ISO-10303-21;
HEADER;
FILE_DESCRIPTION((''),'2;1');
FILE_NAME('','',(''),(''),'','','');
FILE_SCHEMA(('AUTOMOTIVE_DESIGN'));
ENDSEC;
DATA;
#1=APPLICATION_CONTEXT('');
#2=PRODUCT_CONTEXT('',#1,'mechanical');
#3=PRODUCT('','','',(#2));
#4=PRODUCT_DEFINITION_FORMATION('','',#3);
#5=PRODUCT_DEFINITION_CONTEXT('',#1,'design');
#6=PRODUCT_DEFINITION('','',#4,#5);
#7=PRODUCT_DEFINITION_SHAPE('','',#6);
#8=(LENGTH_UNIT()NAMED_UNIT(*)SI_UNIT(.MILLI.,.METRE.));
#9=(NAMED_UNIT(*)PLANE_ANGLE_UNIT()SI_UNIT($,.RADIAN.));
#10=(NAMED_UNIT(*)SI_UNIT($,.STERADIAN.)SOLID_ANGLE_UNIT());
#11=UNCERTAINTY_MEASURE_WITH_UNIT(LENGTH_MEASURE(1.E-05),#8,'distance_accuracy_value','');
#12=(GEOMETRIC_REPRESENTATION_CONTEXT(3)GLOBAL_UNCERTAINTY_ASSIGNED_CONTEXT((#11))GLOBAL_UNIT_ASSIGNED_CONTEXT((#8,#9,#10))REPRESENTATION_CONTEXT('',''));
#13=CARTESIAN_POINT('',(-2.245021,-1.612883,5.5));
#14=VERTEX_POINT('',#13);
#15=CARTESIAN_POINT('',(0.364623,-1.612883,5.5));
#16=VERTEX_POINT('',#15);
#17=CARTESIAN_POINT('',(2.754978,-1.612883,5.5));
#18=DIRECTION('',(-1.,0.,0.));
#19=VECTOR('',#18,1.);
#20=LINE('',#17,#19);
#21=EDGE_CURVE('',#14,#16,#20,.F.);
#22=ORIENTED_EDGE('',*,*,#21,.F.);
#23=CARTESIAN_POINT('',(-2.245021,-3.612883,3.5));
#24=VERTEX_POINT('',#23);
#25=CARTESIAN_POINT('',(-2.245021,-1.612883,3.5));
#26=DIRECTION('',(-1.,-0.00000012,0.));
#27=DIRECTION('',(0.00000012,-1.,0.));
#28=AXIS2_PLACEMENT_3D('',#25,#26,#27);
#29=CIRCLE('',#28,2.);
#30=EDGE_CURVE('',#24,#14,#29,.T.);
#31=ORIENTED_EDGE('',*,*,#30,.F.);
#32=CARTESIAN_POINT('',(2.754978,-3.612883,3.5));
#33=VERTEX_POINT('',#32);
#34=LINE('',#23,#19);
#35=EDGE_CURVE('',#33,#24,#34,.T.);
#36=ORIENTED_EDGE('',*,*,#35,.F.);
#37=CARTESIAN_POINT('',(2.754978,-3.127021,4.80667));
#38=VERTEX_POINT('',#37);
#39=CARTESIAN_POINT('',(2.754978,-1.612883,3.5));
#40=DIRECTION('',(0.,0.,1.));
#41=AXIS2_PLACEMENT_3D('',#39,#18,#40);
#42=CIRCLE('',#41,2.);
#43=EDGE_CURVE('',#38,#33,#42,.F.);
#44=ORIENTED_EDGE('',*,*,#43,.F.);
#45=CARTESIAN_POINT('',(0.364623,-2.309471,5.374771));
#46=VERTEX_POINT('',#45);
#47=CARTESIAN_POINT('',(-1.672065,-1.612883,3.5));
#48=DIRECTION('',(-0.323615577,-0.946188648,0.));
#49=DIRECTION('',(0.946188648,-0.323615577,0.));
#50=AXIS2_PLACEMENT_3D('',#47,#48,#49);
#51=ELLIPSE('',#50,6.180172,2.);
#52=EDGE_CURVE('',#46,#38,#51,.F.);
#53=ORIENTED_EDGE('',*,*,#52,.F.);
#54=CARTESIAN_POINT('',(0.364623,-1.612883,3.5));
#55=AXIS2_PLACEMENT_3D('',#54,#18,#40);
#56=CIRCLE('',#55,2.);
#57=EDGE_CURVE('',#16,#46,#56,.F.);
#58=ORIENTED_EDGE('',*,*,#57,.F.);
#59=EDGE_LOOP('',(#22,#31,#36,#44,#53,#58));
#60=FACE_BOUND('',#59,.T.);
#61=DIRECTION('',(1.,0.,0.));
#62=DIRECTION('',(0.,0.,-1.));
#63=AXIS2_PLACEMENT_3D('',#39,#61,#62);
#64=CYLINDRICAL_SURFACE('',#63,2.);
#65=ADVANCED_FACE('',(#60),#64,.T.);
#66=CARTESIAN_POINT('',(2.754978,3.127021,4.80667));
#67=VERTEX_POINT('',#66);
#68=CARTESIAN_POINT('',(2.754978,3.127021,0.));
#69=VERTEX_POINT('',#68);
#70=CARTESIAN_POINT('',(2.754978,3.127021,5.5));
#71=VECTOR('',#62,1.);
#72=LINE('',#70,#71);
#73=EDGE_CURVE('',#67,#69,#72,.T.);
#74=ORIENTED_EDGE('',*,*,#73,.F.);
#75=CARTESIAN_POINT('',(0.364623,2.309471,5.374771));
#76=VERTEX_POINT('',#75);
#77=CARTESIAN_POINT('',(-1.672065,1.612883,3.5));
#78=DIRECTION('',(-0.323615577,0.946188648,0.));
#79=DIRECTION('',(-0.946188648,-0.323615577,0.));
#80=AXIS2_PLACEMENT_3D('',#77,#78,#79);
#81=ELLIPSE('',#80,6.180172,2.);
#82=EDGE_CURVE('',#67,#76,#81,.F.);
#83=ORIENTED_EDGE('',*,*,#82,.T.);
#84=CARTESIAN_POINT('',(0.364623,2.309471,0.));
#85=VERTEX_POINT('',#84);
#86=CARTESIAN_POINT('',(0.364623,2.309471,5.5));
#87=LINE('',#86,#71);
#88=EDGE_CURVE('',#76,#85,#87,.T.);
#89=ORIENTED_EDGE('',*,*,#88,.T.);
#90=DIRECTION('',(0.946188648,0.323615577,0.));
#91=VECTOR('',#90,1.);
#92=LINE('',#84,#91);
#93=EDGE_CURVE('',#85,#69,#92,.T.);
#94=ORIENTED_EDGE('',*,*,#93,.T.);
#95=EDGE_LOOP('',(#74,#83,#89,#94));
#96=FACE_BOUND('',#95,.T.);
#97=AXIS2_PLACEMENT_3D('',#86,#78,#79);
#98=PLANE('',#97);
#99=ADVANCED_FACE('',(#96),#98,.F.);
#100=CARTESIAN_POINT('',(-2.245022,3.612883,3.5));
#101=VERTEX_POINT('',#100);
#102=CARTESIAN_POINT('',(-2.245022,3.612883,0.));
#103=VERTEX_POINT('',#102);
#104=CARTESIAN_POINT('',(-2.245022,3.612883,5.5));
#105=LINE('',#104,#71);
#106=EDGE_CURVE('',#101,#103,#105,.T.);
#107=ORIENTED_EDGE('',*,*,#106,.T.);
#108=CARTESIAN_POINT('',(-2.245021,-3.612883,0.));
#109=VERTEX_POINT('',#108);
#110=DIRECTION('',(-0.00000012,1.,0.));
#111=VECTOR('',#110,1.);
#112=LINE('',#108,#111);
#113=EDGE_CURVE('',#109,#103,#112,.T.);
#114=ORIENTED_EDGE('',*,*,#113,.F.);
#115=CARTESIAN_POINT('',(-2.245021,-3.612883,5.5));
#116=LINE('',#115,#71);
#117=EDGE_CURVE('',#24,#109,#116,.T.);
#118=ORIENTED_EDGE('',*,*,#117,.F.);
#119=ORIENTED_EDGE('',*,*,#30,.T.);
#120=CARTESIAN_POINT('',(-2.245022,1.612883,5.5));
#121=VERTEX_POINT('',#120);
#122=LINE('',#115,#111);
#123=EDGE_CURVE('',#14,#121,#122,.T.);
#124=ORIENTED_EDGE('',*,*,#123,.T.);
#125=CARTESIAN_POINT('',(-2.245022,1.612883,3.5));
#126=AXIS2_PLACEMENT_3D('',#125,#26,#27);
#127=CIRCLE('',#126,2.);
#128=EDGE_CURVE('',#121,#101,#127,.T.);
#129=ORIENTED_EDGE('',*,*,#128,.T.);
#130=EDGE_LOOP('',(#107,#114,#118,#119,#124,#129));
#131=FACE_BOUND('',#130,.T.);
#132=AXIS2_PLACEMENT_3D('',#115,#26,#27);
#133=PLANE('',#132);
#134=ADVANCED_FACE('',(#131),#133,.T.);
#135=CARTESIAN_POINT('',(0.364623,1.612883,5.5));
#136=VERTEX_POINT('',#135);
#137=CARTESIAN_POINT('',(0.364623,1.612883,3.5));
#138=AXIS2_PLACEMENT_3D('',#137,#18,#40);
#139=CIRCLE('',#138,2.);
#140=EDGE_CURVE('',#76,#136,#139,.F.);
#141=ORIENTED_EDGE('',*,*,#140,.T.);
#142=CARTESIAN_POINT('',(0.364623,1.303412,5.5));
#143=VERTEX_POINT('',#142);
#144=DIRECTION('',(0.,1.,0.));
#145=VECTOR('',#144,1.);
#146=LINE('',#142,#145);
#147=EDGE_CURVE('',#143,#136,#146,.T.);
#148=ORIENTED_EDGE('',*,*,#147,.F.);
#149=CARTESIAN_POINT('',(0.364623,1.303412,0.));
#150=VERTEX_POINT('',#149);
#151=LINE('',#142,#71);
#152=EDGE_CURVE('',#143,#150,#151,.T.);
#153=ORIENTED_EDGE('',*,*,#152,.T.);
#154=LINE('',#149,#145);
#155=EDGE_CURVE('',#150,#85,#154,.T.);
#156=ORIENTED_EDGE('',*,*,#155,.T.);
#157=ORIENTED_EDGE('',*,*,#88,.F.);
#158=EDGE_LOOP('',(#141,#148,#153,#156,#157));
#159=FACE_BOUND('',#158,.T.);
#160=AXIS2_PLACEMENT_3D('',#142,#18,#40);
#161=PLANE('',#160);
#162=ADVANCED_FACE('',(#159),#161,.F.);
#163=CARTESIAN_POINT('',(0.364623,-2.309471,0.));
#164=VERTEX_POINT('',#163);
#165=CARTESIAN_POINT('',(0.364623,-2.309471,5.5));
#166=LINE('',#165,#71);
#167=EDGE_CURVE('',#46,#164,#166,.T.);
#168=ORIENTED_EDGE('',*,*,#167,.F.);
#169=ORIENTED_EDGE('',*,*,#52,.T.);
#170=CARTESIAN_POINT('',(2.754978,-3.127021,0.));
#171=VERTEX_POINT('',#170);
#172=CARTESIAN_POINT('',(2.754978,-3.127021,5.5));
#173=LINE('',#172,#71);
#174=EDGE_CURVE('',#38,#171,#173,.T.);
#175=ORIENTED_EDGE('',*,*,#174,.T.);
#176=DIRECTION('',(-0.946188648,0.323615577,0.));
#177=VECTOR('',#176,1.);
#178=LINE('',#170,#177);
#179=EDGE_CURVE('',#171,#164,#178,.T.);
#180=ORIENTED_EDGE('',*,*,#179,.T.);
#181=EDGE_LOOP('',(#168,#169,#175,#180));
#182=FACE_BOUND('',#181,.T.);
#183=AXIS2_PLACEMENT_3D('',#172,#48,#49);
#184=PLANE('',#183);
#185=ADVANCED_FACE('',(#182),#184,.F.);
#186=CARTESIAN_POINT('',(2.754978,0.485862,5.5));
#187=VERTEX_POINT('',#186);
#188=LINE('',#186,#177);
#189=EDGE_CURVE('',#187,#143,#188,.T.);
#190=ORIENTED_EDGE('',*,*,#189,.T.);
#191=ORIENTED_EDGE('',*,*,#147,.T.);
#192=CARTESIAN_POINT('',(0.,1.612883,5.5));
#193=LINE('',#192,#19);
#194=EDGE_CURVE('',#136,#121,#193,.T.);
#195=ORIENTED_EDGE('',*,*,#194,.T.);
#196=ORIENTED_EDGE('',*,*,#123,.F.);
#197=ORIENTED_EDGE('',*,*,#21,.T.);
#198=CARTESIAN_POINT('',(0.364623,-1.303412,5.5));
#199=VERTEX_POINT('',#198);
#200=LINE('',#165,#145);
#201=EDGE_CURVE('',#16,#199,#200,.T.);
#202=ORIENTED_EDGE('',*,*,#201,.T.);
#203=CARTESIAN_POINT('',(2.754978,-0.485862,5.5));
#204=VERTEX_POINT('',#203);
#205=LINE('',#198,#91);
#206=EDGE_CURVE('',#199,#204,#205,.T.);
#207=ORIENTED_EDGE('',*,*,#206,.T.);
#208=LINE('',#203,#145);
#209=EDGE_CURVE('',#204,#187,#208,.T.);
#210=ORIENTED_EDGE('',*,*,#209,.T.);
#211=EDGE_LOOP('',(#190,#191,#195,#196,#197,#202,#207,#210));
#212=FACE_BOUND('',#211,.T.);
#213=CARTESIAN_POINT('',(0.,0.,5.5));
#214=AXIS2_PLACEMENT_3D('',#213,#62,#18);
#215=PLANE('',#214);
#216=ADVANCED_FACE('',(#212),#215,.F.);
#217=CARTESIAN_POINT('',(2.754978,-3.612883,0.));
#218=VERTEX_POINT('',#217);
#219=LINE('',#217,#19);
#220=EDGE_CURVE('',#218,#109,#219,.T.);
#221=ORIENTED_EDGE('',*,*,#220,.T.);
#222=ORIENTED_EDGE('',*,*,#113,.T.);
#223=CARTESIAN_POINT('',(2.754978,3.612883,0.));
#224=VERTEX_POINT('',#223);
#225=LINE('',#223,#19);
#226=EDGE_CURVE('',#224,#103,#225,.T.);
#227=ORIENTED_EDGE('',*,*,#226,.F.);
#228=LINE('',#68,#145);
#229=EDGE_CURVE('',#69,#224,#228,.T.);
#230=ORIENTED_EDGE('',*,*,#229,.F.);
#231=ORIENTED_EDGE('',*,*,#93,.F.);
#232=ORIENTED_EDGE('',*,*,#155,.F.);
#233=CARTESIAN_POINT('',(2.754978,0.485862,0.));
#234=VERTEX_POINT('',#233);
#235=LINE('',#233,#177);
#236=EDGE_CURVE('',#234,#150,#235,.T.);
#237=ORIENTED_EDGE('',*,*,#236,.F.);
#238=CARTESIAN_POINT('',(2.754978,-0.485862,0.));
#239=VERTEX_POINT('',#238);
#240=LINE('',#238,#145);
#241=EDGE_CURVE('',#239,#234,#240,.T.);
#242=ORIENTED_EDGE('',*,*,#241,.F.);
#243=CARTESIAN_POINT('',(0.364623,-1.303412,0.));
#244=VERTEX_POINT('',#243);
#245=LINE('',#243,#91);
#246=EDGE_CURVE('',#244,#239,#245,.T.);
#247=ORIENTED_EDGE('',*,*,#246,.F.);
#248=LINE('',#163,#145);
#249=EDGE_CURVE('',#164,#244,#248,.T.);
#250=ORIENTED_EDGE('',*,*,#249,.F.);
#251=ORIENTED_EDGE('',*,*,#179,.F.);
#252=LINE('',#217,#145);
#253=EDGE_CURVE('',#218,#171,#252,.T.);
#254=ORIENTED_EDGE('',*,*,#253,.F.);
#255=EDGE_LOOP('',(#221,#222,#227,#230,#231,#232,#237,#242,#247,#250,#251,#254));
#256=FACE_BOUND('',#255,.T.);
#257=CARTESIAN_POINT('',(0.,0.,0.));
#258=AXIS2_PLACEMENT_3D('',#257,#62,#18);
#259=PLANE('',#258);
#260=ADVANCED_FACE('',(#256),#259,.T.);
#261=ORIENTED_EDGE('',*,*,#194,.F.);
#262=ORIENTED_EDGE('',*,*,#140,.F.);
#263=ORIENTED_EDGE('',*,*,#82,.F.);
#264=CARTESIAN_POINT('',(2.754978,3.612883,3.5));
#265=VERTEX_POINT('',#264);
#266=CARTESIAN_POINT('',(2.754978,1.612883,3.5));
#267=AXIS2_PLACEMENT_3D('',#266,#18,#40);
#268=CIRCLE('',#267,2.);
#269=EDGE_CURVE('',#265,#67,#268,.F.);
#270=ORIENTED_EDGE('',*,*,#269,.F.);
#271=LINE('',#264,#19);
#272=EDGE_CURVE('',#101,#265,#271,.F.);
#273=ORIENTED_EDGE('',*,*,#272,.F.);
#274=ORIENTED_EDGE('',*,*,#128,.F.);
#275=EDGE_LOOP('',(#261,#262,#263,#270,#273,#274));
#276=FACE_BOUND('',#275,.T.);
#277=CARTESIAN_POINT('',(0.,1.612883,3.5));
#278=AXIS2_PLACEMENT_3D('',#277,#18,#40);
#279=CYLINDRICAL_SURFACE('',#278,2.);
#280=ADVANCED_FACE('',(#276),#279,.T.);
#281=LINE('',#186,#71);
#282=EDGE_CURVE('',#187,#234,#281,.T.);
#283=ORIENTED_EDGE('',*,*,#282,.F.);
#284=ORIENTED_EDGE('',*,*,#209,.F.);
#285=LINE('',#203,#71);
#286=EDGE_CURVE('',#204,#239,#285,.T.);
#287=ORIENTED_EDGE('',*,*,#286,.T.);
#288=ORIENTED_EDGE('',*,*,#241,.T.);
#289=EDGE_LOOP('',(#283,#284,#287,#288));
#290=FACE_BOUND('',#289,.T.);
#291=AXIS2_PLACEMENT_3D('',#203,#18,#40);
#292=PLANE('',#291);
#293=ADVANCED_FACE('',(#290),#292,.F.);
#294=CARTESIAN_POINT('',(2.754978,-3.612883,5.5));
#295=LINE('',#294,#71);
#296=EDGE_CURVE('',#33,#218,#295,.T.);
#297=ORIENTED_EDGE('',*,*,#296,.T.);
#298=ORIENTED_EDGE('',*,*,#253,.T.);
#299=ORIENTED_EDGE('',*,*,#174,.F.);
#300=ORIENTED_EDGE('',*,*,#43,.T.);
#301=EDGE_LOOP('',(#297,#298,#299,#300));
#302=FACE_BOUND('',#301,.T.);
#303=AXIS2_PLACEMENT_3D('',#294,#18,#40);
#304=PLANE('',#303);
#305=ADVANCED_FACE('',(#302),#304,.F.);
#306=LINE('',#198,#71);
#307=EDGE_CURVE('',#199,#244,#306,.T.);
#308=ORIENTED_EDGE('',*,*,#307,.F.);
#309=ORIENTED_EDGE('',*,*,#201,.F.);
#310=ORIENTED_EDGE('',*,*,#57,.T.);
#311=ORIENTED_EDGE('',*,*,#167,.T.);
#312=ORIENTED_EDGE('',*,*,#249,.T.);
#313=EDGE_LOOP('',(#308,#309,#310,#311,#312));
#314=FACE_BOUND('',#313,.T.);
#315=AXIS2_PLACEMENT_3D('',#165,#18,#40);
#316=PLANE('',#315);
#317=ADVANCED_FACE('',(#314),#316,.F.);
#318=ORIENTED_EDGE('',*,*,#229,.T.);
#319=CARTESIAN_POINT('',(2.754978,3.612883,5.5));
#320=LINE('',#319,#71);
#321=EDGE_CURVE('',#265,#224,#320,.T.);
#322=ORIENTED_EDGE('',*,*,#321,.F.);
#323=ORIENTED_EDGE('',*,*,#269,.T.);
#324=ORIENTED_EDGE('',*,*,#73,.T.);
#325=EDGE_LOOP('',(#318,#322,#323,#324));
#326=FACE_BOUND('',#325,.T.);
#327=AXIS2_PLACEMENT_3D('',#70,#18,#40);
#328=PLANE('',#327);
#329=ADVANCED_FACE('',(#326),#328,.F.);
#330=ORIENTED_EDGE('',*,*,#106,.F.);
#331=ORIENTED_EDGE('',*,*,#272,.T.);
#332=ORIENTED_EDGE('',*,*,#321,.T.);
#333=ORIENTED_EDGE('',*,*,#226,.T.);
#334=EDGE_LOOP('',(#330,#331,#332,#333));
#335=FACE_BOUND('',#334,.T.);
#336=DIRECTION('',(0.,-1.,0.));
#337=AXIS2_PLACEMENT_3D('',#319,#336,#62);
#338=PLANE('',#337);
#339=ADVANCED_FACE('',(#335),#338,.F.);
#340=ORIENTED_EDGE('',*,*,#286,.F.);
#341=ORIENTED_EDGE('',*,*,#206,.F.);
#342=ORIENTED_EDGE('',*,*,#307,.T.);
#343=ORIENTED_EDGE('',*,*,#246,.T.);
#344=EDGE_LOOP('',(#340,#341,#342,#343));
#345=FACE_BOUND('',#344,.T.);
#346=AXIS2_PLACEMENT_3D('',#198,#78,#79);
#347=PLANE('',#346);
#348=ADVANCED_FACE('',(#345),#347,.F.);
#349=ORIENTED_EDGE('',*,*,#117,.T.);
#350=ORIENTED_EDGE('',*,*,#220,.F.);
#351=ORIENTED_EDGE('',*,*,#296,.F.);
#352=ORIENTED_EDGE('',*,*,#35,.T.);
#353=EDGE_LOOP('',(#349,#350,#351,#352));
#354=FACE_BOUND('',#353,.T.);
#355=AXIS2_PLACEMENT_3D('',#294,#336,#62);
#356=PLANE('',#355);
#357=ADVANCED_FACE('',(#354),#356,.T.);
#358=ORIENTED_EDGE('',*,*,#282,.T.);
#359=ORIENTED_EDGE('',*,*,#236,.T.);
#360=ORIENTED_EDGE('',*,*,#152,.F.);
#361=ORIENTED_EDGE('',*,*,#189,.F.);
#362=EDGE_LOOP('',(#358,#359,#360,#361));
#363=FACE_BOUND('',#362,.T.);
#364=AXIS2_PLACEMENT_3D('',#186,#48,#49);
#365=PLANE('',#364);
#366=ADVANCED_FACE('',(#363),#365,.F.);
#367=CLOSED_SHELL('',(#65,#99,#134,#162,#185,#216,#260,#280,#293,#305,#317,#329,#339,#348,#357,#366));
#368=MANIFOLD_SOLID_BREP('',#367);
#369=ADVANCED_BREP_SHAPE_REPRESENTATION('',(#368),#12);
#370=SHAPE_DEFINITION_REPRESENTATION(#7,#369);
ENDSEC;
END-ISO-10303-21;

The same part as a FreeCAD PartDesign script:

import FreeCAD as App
import Part
import Sketcher


def edges_at(feature, points):
    """Names of the edges that pass closest to the given points."""
    edges = feature.Shape.Edges
    near = lambda p: min(range(len(edges)), key=lambda i: edges[i].distToShape(Part.Vertex(*p))[0])
    return sorted({f"Edge{near(p) + 1}" for p in points})

doc = App.newDocument("Part")
body = doc.addObject("PartDesign::Body", "Body")

# Sketch on XY plane
sketch1 = doc.addObject("Sketcher::SketchObject", "Sketch")
body.addObject(sketch1)
sketch1.AttachmentSupport = (doc.XY_Plane, [""])
sketch1.MapMode = "FlatFace"
sketch1.addGeometry([
    Part.LineSegment(App.Vector(2.75, -3.61, 0), App.Vector(2.75, -3.13, 0)),  # 0
    Part.LineSegment(App.Vector(2.75, -3.13, 0), App.Vector(0.36, -2.31, 0)),  # 1
    Part.LineSegment(App.Vector(0.36, -2.31, 0), App.Vector(0.36, -1.3, 0)),  # 2
    Part.LineSegment(App.Vector(0.36, -1.3, 0), App.Vector(2.75, -0.49, 0)),  # 3
    Part.LineSegment(App.Vector(2.75, -0.49, 0), App.Vector(2.75, 0.49, 0)),  # 4
    Part.LineSegment(App.Vector(2.75, 0.49, 0), App.Vector(0.36, 1.3, 0)),  # 5
    Part.LineSegment(App.Vector(0.36, 1.3, 0), App.Vector(0.36, 2.31, 0)),  # 6
    Part.LineSegment(App.Vector(0.36, 2.31, 0), App.Vector(2.75, 3.13, 0)),  # 7
    Part.LineSegment(App.Vector(2.75, 3.13, 0), App.Vector(2.75, 3.61, 0)),  # 8
    Part.LineSegment(App.Vector(2.75, 3.61, 0), App.Vector(-2.25, 3.61, 0)),  # 9
    Part.LineSegment(App.Vector(-2.25, 3.61, 0), App.Vector(-2.25, -3.61, 0)),  # 10
    Part.LineSegment(App.Vector(-2.25, -3.61, 0), App.Vector(2.75, -3.61, 0)),  # 11
], False)
sketch1.addConstraint([
    Sketcher.Constraint("Coincident", 0, 2, 1, 1),
    Sketcher.Constraint("Coincident", 1, 2, 2, 1),
    Sketcher.Constraint("Coincident", 2, 2, 3, 1),
    Sketcher.Constraint("Coincident", 3, 2, 4, 1),
    Sketcher.Constraint("Coincident", 4, 2, 5, 1),
    Sketcher.Constraint("Coincident", 5, 2, 6, 1),
    Sketcher.Constraint("Coincident", 6, 2, 7, 1),
    Sketcher.Constraint("Coincident", 7, 2, 8, 1),
    Sketcher.Constraint("Coincident", 8, 2, 9, 1),
    Sketcher.Constraint("Coincident", 9, 2, 10, 1),
    Sketcher.Constraint("Coincident", 10, 2, 11, 1),
    Sketcher.Constraint("Coincident", 11, 2, 0, 1),
    Sketcher.Constraint("Vertical", 0),
    Sketcher.Constraint("Vertical", 2),
    Sketcher.Constraint("Vertical", 4),
    Sketcher.Constraint("Vertical", 6),
    Sketcher.Constraint("Vertical", 8),
    Sketcher.Constraint("Horizontal", 9),
    Sketcher.Constraint("Vertical", 10),
    Sketcher.Constraint("Horizontal", 11),
    Sketcher.Constraint("Symmetric", 2, 2, 5, 2, -1),
    Sketcher.Constraint("Symmetric", 0, 2, 7, 2, -1),
    Sketcher.Constraint("Parallel", 1, 5),
    Sketcher.Constraint("Parallel", 3, 7),
    Sketcher.Constraint("Vertical", 0, 2, 3, 2),
    Sketcher.Constraint("Equal", 2, 6),
    Sketcher.Constraint("Equal", 0, 8),
    Sketcher.Constraint("DistanceX", 9, 2, 9, 1, 5.0),
    Sketcher.Constraint("Distance", 1, 2.526298),
    Sketcher.Constraint("DistanceY", 2, 1, 2, 2, 1.006059),
    Sketcher.Constraint("DistanceY", 0, 1, 0, 2, 0.485862),
    Sketcher.Constraint("DistanceY", 4, 1, 4, 2, 0.971725),
    Sketcher.Constraint("DistanceY", 10, 2, 10, 1, 7.225766),
    Sketcher.Constraint("DistanceX", 9, 2, -1, 1, 2.245022),
])
pad1 = doc.addObject("PartDesign::Pad", "Pad")
body.addObject(pad1)
pad1.Profile = sketch1
pad1.Length = 5.5
doc.recompute()

fillet = doc.addObject("PartDesign::Fillet", "Fillet")
body.addObject(fillet)
fillet.Base = (pad1, edges_at(pad1, [(0.255, -3.613, 5.5), (0.255, 3.613, 5.5)]))
fillet.Radius = 2

doc.recompute()
